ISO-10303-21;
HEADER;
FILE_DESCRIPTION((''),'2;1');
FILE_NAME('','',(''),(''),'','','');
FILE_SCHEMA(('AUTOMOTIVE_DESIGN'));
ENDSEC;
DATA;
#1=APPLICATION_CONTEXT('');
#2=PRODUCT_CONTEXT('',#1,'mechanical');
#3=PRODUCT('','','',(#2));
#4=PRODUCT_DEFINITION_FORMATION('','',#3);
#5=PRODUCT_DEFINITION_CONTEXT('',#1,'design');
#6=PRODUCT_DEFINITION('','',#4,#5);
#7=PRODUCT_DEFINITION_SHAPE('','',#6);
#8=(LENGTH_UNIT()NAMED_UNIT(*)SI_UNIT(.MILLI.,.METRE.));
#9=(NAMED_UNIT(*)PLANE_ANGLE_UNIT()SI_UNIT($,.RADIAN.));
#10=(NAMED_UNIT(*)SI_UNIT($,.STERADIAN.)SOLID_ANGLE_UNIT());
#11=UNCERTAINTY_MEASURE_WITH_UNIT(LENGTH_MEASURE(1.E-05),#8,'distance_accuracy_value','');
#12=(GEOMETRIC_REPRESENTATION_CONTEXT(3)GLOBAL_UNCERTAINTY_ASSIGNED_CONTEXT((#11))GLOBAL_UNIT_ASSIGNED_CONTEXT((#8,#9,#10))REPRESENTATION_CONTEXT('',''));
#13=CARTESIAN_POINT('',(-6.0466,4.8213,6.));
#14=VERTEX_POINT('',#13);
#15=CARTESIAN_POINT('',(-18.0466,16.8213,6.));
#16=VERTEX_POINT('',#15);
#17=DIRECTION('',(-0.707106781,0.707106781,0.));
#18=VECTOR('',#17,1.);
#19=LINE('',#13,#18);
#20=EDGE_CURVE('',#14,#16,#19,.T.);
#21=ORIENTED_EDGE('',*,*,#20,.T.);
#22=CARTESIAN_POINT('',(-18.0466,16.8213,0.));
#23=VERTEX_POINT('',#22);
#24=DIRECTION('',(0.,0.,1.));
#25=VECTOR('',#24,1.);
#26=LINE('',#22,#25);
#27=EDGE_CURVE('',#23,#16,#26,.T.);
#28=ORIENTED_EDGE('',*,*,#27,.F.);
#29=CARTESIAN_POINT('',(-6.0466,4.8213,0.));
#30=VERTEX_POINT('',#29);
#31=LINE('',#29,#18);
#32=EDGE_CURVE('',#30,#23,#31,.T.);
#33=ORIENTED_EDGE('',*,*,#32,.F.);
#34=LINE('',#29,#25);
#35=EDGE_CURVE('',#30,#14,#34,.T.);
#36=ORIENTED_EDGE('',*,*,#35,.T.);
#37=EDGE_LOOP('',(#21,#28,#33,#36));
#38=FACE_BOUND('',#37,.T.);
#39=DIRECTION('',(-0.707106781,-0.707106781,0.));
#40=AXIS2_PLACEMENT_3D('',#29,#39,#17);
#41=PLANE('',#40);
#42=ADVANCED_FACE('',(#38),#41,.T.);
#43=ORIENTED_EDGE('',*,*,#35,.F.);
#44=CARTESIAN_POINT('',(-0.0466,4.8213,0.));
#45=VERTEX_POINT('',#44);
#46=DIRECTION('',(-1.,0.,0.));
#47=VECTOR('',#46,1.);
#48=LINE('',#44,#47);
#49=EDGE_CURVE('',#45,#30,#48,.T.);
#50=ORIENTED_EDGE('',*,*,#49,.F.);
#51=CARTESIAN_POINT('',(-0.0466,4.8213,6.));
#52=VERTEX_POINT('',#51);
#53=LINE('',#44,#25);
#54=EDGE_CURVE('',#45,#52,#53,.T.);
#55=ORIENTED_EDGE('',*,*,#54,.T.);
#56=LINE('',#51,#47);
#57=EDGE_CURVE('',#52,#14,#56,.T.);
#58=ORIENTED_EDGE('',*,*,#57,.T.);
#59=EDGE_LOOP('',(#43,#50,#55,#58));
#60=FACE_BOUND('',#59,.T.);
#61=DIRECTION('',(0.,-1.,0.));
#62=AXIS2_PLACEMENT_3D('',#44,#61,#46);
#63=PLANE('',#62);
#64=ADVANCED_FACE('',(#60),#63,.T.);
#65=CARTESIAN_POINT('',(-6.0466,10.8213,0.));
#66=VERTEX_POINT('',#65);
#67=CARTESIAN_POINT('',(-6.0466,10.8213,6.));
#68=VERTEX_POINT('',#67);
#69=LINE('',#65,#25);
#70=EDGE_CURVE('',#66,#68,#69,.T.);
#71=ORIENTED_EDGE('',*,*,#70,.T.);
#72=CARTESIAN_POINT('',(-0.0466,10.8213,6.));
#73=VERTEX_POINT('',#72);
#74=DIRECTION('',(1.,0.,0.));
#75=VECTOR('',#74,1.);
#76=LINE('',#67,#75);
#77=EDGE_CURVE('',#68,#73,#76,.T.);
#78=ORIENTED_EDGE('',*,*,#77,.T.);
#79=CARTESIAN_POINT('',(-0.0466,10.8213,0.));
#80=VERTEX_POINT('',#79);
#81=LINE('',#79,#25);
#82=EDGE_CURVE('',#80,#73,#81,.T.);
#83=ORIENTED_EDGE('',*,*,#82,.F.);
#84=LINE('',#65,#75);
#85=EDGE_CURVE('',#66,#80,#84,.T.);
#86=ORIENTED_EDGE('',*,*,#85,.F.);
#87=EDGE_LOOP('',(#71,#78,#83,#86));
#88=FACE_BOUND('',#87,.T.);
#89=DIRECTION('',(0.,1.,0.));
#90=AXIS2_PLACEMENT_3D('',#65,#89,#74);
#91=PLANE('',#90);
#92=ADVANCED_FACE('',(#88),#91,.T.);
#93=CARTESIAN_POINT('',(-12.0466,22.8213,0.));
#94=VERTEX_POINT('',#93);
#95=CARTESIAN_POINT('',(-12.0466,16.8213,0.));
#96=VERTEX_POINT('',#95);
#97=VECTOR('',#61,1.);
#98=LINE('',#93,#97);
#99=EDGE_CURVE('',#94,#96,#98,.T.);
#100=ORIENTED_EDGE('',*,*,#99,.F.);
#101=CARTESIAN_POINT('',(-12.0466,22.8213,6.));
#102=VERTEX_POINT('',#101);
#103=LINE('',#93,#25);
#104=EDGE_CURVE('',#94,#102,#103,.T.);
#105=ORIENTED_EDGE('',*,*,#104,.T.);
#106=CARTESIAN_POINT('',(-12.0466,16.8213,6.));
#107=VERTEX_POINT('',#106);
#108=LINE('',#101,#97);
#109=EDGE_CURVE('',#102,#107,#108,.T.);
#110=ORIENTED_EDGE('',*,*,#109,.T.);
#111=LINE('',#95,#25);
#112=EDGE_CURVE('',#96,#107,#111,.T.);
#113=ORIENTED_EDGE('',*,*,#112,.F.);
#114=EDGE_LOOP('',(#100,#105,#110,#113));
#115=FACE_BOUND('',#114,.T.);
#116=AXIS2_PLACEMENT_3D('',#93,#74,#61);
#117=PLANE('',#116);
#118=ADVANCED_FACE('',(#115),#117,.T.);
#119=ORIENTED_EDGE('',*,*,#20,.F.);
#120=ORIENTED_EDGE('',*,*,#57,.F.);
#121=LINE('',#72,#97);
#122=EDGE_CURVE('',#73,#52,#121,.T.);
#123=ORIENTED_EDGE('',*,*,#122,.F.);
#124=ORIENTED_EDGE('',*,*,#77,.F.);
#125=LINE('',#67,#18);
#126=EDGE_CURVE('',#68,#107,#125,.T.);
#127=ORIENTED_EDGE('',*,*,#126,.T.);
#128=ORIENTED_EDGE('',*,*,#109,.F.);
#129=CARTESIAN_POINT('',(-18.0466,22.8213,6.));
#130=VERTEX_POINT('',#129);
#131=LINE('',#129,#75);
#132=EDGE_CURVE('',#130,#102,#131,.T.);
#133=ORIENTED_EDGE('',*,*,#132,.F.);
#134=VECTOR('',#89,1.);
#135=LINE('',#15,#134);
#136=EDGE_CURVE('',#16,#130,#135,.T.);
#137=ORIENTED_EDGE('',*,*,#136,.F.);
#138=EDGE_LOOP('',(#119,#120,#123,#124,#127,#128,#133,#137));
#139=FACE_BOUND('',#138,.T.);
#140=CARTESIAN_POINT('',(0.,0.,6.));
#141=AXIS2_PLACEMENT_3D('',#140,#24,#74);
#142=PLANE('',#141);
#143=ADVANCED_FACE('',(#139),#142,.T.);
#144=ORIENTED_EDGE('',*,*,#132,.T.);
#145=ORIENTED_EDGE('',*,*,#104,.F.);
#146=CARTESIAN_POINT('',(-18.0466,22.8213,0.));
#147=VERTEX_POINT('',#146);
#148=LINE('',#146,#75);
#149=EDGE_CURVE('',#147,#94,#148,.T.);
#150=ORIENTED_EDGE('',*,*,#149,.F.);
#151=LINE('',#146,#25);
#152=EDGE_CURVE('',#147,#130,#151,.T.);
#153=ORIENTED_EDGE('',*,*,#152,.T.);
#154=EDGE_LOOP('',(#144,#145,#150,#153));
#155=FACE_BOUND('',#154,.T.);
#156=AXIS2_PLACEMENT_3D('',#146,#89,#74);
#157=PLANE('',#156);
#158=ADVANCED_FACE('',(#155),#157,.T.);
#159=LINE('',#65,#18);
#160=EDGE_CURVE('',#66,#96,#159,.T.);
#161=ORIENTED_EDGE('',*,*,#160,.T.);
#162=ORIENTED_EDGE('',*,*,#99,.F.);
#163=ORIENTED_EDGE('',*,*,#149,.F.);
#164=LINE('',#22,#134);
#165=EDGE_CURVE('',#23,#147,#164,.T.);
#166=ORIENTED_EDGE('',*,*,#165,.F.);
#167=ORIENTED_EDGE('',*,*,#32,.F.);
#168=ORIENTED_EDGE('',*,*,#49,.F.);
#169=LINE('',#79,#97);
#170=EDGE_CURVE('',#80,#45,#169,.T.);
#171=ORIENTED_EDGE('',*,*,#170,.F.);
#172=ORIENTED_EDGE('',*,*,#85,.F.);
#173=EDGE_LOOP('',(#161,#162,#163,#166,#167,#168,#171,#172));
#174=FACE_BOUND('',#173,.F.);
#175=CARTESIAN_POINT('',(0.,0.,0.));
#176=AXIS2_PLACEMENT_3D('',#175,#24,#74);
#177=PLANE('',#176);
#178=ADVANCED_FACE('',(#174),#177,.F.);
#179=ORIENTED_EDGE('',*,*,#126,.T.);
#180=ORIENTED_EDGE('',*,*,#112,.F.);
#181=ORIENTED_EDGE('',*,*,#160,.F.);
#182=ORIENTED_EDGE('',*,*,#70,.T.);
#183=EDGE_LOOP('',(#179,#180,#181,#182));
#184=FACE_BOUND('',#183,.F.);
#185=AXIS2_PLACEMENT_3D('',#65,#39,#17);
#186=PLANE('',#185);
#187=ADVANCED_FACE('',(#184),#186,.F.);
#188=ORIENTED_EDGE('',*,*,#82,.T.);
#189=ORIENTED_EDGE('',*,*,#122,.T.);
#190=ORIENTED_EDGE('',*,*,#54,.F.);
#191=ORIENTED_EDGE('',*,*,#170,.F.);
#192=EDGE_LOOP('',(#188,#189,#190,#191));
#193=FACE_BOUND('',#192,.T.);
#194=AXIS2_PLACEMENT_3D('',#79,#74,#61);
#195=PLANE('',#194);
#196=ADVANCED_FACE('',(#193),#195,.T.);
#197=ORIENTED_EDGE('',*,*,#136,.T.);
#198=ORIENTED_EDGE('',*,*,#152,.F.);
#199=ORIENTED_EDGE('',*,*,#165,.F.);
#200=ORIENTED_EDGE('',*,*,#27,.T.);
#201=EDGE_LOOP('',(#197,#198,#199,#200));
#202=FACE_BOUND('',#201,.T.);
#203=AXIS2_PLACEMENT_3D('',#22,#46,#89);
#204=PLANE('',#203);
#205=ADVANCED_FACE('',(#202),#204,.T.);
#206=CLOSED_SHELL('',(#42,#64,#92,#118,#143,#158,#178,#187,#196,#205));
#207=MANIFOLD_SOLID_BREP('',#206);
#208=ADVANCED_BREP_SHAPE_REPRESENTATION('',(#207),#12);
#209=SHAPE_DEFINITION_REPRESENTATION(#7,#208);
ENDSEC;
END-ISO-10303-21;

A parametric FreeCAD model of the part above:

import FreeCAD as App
import Part
import Sketcher
from FreeCAD import Vector

doc = App.newDocument("Part")
body = doc.addObject("PartDesign::Body", "Body")

sketch1 = body.newObject("Sketcher::SketchObject", "Sketch")
sketch1.AttachmentSupport = (doc.getObject("XY_Plane"), [""])
sketch1.MapMode = "FlatFace"
sketch1.addGeometry(Part.LineSegment(Vector(-6, 5, 0), Vector(0, 5, 0)), False)
sketch1.addGeometry(Part.LineSegment(Vector(0, 5, 0), Vector(0, 11, 0)), False)
sketch1.addGeometry(Part.LineSegment(Vector(0, 11, 0), Vector(-6, 11, 0)), False)
sketch1.addGeometry(Part.LineSegment(Vector(-6, 11, 0), Vector(-12, 17, 0)), False)
sketch1.addGeometry(Part.LineSegment(Vector(-12, 17, 0), Vector(-12, 23, 0)), False)
sketch1.addGeometry(Part.LineSegment(Vector(-12, 23, 0), Vector(-18, 23, 0)), False)
sketch1.addGeometry(Part.LineSegment(Vector(-18, 23, 0), Vector(-18, 17, 0)), False)
sketch1.addGeometry(Part.LineSegment(Vector(-18, 17, 0), Vector(-6, 5, 0)), False)
sketch1.addConstraint(Sketcher.Constraint("Coincident", 0, 2, 1, 1))
sketch1.addConstraint(Sketcher.Constraint("Coincident", 1, 2, 2, 1))
sketch1.addConstraint(Sketcher.Constraint("Coincident", 2, 2, 3, 1))
sketch1.addConstraint(Sketcher.Constraint("Coincident", 3, 2, 4, 1))
sketch1.addConstraint(Sketcher.Constraint("Coincident", 4, 2, 5, 1))
sketch1.addConstraint(Sketcher.Constraint("Coincident", 5, 2, 6, 1))
sketch1.addConstraint(Sketcher.Constraint("Coincident", 6, 2, 7, 1))
sketch1.addConstraint(Sketcher.Constraint("Coincident", 7, 2, 0, 1))
sketch1.addConstraint(Sketcher.Constraint("Horizontal", 0))
sketch1.addConstraint(Sketcher.Constraint("Vertical", 1))
sketch1.addConstraint(Sketcher.Constraint("Horizontal", 2))
sketch1.addConstraint(Sketcher.Constraint("Vertical", 4))
sketch1.addConstraint(Sketcher.Constraint("Horizontal", 5))
sketch1.addConstraint(Sketcher.Constraint("Vertical", 6))
sketch1.addConstraint(Sketcher.Constraint("Parallel", 3, 7))
sketch1.addConstraint(Sketcher.Constraint("Horizontal", 3, 2, 6, 2))
sketch1.addConstraint(Sketcher.Constraint("Vertical", 2, 2, 7, 2))
sketch1.addConstraint(Sketcher.Constraint("Equal", 2, 5))
sketch1.addConstraint(Sketcher.Constraint("Equal", 5, 1))
sketch1.addConstraint(Sketcher.Constraint("Equal", 1, 4))
sketch1.addConstraint(Sketcher.Constraint("DistanceX", 0, 1, 0, 2, 6.0))
sketch1.addConstraint(Sketcher.Constraint("DistanceX", 3, 2, 2, 2, 6.0))
sketch1.addConstraint(Sketcher.Constraint("DistanceX", 0, 2, -1, 1, 0.0466))
sketch1.addConstraint(Sketcher.Constraint("DistanceY", -1, 1, 0, 2, 4.8213))
pad1 = body.newObject("PartDesign::Pad", "Pad")
pad1.Profile = sketch1
pad1.Length = 6

doc.recompute()
